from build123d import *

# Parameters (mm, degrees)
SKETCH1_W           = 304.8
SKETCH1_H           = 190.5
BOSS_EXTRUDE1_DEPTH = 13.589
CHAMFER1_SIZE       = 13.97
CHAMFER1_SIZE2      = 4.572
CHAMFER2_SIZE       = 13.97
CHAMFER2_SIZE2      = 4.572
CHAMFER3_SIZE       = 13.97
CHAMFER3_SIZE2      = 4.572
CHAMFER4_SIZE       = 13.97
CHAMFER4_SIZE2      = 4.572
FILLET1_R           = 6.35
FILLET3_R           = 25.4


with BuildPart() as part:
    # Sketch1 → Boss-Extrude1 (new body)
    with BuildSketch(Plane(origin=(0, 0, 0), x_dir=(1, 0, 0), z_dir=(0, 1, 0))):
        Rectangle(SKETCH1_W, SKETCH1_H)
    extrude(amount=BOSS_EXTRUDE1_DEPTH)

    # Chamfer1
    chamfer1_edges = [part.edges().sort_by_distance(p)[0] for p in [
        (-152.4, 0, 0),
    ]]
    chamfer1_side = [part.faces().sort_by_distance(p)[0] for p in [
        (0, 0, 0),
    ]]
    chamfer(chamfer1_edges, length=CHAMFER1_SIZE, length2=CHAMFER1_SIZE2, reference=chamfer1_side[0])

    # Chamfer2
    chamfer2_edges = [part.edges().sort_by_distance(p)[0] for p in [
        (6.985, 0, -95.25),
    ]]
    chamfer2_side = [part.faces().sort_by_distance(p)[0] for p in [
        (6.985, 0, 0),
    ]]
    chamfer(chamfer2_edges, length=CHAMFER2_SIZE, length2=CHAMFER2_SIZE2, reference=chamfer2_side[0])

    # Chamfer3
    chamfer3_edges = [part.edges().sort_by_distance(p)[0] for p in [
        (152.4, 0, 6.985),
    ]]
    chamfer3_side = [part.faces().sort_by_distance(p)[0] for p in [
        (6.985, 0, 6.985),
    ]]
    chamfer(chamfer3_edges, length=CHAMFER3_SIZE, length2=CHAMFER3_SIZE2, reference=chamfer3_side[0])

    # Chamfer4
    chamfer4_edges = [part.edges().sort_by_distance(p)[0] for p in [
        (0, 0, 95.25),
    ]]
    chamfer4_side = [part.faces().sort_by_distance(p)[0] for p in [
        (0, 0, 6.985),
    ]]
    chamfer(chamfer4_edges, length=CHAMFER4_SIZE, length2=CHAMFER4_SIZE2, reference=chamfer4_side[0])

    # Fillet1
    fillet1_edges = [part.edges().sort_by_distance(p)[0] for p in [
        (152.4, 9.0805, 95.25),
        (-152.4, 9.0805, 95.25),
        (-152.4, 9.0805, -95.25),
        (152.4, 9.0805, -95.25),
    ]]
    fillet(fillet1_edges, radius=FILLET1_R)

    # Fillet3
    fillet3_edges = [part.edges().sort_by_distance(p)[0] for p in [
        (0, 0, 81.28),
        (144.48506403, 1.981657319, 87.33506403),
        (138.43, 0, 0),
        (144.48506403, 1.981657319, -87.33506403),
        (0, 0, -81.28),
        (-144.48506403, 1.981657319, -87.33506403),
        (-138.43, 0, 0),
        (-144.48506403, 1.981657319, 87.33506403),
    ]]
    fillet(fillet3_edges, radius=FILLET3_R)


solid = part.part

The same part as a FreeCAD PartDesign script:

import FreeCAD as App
import Part
import Sketcher
Q = App.Units.Quantity


def edges_at(feature, points):
    """Names of the edges that pass closest to the given points."""
    edges = feature.Shape.Edges
    near = lambda p: min(range(len(edges)), key=lambda i: edges[i].distToShape(Part.Vertex(*p))[0])
    return sorted({f"Edge{near(p) + 1}" for p in points})

doc = App.newDocument("Part")
body = doc.addObject("PartDesign::Body", "Body")

# Sketch on XZ plane
sketch1 = doc.addObject("Sketcher::SketchObject", "Sketch")
body.addObject(sketch1)
sketch1.AttachmentSupport = (doc.XZ_Plane, [""])
sketch1.MapMode = "FlatFace"
sketch1.addGeometry(Part.LineSegment(App.Vector(-152, -95, 0), App.Vector(-152, 95, 0)), False)
sketch1.addGeometry(Part.LineSegment(App.Vector(-152, 95, 0), App.Vector(152, 95, 0)), False)
sketch1.addGeometry(Part.LineSegment(App.Vector(152, 95, 0), App.Vector(152, -95, 0)), False)
sketch1.addGeometry(Part.LineSegment(App.Vector(152, -95, 0), App.Vector(-152, -95, 0)), False)
sketch1.addConstraint(Sketcher.Constraint("Coincident", 0, 2, 1, 1))
sketch1.addConstraint(Sketcher.Constraint("Coincident", 1, 2, 2, 1))
sketch1.addConstraint(Sketcher.Constraint("Coincident", 2, 2, 3, 1))
sketch1.addConstraint(Sketcher.Constraint("Coincident", 3, 2, 0, 1))
sketch1.addConstraint(Sketcher.Constraint("Vertical", 0))
sketch1.addConstraint(Sketcher.Constraint("Horizontal", 1))
sketch1.addConstraint(Sketcher.Constraint("Vertical", 2))
sketch1.addConstraint(Sketcher.Constraint("Horizontal", 3))
sketch1.addConstraint(Sketcher.Constraint("Symmetric", 0, 2, 2, 2, -1, 1))
sketch1.addConstraint(Sketcher.Constraint("DistanceX", 1, 1, 1, 2, Q("12 in")))
sketch1.addConstraint(Sketcher.Constraint("DistanceY", 0, 1, 0, 2, Q("7.5 in")))
pad1 = doc.addObject("PartDesign::Pad", "Pad")
body.addObject(pad1)
pad1.Profile = sketch1
pad1.Length = Q("0.535 in")
pad1.Reversed = True
doc.recompute()

chamfer = doc.addObject("PartDesign::Chamfer", "Chamfer")
body.addObject(chamfer)
chamfer.Base = (pad1, edges_at(pad1, [(-152.4, 0, 0)]))
chamfer.ChamferType = "Two distances"
chamfer.Size = Q("0.55 in")
chamfer.Size2 = Q("0.18 in")
chamfer.FlipDirection = True
doc.recompute()

chamfer2 = doc.addObject("PartDesign::Chamfer", "Chamfer001")
body.addObject(chamfer2)
chamfer2.Base = (chamfer, edges_at(chamfer, [(6.985, 0, -95.25)]))
chamfer2.ChamferType = "Two distances"
chamfer2.Size = Q("0.55 in")
chamfer2.Size2 = Q("0.18 in")
chamfer2.FlipDirection = True
doc.recompute()

chamfer3 = doc.addObject("PartDesign::Chamfer", "Chamfer002")
body.addObject(chamfer3)
chamfer3.Base = (chamfer2, edges_at(chamfer2, [(152.4, 0, 6.985)]))
chamfer3.ChamferType = "Two distances"
chamfer3.Size = Q("0.55 in")
chamfer3.Size2 = Q("0.18 in")
chamfer3.FlipDirection = True
doc.recompute()

chamfer4 = doc.addObject("PartDesign::Chamfer", "Chamfer003")
body.addObject(chamfer4)
chamfer4.Base = (chamfer3, edges_at(chamfer3, [(0, 0, 95.25)]))
chamfer4.ChamferType = "Two distances"
chamfer4.Size = Q("0.55 in")
chamfer4.Size2 = Q("0.18 in")
chamfer4.FlipDirection = True
doc.recompute()

fillet = doc.addObject("PartDesign::Fillet", "Fillet")
body.addObject(fillet)
fillet.Base = (chamfer4, edges_at(chamfer4, [
    (152.4, 9.081, 95.25),
    (-152.4, 9.081, 95.25),
    (-152.4, 9.081, -95.25),
    (152.4, 9.081, -95.25),
]))
fillet.Radius = Q("0.25 in")
doc.recompute()

fillet2 = doc.addObject("PartDesign::Fillet", "Fillet001")
body.addObject(fillet2)
fillet2.Base = (fillet, edges_at(fillet, [
    (0, 0, 81.28),
    (144.485, 1.982, 87.335),
    (138.43, 0, 0),
    (144.485, 1.982, -87.335),
    (0, 0, -81.28),
    (-144.485, 1.982, -87.335),
    (-138.43, 0, 0),
    (-144.485, 1.982, 87.335),
]))
fillet2.Radius = Q("1 in")

doc.recompute()
